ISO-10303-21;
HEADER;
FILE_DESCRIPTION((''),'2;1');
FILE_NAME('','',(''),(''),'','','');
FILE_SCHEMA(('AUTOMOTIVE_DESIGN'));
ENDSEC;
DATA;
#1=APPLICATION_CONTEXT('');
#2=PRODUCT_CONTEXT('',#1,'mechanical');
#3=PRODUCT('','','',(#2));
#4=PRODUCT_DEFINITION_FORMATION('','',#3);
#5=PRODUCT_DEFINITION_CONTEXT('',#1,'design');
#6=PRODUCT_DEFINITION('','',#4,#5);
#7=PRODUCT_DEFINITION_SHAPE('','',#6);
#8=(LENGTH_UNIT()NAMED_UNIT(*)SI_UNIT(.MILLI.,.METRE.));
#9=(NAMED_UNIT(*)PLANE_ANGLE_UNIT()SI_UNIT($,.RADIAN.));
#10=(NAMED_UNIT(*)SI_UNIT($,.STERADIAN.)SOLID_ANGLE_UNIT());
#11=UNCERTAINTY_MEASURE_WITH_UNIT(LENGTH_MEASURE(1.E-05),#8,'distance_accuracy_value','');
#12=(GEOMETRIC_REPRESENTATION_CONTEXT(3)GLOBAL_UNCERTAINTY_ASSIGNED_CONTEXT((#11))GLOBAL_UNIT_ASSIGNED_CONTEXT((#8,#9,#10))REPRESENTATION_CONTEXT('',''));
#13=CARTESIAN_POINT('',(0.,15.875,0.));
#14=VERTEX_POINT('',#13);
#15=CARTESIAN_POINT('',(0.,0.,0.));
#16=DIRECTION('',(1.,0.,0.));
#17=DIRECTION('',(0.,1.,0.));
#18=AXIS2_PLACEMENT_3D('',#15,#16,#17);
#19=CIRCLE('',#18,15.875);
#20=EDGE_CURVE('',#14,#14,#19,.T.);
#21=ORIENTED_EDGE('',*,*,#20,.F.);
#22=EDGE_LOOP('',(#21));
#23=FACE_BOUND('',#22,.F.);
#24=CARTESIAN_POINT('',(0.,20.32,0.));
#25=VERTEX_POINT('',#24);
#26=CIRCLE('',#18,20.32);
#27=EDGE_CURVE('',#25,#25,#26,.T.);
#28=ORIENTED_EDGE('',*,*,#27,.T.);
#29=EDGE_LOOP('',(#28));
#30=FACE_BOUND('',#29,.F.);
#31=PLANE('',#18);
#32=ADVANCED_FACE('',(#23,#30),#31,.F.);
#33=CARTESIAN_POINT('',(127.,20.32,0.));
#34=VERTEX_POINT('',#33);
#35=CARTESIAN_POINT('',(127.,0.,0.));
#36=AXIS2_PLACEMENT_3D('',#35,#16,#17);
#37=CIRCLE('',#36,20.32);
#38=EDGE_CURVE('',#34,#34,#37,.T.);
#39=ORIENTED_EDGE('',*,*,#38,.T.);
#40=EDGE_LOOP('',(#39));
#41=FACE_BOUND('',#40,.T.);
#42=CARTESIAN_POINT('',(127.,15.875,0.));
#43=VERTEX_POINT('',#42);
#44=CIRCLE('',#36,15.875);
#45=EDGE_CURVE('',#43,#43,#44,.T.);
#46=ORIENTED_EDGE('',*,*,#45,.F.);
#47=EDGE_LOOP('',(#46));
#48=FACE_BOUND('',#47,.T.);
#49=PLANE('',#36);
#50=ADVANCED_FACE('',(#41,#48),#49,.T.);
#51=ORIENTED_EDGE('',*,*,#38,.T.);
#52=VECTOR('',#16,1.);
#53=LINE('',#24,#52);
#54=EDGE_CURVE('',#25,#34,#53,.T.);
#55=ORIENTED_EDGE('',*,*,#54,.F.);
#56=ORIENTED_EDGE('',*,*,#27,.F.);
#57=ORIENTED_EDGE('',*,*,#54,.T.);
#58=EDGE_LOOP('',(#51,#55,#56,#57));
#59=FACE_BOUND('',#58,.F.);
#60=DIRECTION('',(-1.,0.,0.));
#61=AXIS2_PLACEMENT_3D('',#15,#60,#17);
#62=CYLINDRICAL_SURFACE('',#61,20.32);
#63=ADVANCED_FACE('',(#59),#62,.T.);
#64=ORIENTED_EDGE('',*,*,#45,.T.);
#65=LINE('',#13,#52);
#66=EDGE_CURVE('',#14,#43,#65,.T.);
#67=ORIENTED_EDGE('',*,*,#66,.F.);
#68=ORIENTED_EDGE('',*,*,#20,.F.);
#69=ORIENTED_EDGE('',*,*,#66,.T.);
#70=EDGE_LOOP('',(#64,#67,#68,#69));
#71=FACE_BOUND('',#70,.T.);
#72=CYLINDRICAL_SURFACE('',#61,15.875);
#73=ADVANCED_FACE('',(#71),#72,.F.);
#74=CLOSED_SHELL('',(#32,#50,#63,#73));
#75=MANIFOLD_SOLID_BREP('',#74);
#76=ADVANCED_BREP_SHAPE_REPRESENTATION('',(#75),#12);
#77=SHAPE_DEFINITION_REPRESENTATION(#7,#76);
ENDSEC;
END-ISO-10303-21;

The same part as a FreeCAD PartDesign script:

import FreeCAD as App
import Part
import Sketcher

V = App.Vector
Q = App.Units.Quantity

doc = App.newDocument("Part")
body = doc.addObject("PartDesign::Body", "Body")

# Sketch on YZ plane
sketch1 = doc.addObject("Sketcher::SketchObject", "Sketch")
body.addObject(sketch1)
sketch1.AttachmentSupport = (doc.YZ_Plane, [""])
sketch1.MapMode = "FlatFace"
sketch1.addGeometry([
    Part.Circle(V(0, 0, 0), V(0, 0, 1), 20),
    Part.Circle(V(0, 0, 0), V(0, 0, 1), 16),
], False)
sketch1.addConstraint([
    Sketcher.Constraint("Coincident", 0, 3, -1, 1),
    Sketcher.Constraint("Coincident", 1, 3, -1, 1),
    Sketcher.Constraint("Diameter", 0, Q("1.6 in")),
    Sketcher.Constraint("Diameter", 1, Q("1.25 in")),
])
pad1 = doc.addObject("PartDesign::Pad", "Pad")
body.addObject(pad1)
pad1.Profile = sketch1
pad1.Length = Q("5 in")

doc.recompute()
